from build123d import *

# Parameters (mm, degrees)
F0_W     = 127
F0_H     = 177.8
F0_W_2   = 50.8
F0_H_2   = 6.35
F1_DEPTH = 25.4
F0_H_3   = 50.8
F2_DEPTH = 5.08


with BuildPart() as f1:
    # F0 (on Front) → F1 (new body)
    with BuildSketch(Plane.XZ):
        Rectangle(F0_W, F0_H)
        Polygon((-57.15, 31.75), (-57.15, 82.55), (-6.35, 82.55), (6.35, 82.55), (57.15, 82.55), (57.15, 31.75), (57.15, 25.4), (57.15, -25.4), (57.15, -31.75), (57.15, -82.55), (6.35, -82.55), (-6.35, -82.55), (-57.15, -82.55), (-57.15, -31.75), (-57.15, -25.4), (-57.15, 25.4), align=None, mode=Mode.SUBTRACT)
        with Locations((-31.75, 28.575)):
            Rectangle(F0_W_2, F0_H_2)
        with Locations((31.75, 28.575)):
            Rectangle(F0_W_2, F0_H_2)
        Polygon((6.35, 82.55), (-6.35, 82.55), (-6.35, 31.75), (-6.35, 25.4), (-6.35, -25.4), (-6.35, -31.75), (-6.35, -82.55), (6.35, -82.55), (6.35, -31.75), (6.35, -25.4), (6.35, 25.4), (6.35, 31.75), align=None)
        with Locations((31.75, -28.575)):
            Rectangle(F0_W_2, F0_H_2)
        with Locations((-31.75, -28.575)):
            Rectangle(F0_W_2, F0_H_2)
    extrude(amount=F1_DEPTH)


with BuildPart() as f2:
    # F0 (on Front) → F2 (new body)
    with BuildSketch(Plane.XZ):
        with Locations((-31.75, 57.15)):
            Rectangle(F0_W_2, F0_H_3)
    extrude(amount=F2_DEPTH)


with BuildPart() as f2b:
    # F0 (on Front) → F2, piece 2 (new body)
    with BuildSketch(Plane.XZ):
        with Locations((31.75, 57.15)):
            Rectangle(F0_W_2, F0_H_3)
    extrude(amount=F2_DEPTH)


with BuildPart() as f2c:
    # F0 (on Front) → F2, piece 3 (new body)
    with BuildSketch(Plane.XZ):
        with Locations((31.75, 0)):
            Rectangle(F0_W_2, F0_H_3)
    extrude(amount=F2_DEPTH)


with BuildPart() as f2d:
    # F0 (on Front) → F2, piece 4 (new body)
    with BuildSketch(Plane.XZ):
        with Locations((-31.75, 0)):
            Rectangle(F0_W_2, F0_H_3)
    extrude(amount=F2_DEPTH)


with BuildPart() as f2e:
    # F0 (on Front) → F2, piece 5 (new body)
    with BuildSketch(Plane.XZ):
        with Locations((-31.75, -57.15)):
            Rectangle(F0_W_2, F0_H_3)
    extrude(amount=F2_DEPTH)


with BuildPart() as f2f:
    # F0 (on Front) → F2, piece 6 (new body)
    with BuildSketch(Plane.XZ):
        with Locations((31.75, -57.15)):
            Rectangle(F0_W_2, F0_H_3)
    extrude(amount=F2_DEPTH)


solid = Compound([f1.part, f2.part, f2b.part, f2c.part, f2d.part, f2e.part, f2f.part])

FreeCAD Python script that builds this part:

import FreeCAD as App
import Part
import Sketcher

V = App.Vector
Q = App.Units.Quantity

doc = App.newDocument("Part")
body = doc.addObject("PartDesign::Body", "Body")

# Sketch on XZ plane
sketch1 = body.newObject("Sketcher::SketchObject", "Sketch")
sketch1.AttachmentSupport = (doc.getObject("XZ_Plane"), [""])
sketch1.MapMode = "FlatFace"
sketch1.addGeometry([
    Part.LineSegment(V(-63.5, 88.9, 0), V(-63.5, -88.9, 0)),  # 0
    Part.LineSegment(V(-63.5, -88.9, 0), V(63.5, -88.9, 0)),  # 1
    Part.LineSegment(V(63.5, -88.9, 0), V(63.5, 88.9, 0)),  # 2
    Part.LineSegment(V(63.5, 88.9, 0), V(-63.5, 88.9, 0)),  # 3
    Part.LineSegment(V(-57.15, -82.55, 0), V(-57.15, -31.75, 0)),  # 4
    Part.LineSegment(V(-57.15, -31.75, 0), V(-6.35, -31.75, 0)),  # 5
    Part.LineSegment(V(-6.35, -31.75, 0), V(-6.35, -82.55, 0)),  # 6
    Part.LineSegment(V(-6.35, -82.55, 0), V(-57.15, -82.55, 0)),  # 7
    Part.LineSegment(V(-57.15, -25.4, 0), V(-57.15, 25.4, 0)),  # 8
    Part.LineSegment(V(-57.15, 25.4, 0), V(-6.35, 25.4, 0)),  # 9
    Part.LineSegment(V(-6.35, 25.4, 0), V(-6.35, -25.4, 0)),  # 10
    Part.LineSegment(V(-6.35, -25.4, 0), V(-57.15, -25.4, 0)),  # 11
    Part.LineSegment(V(-6.35, 31.75, 0), V(-57.15, 31.75, 0)),  # 12
    Part.LineSegment(V(-57.15, 31.75, 0), V(-57.15, 82.55, 0)),  # 13
    Part.LineSegment(V(-57.15, 82.55, 0), V(-6.35, 82.55, 0)),  # 14
    Part.LineSegment(V(-6.35, 82.55, 0), V(-6.35, 31.75, 0)),  # 15
    Part.LineSegment(V(6.35, 82.55, 0), V(57.15, 82.55, 0)),  # 16
    Part.LineSegment(V(57.15, 82.55, 0), V(57.15, 31.75, 0)),  # 17
    Part.LineSegment(V(57.15, 31.75, 0), V(6.35, 31.75, 0)),  # 18
    Part.LineSegment(V(6.35, 31.75, 0), V(6.35, 82.55, 0)),  # 19
    Part.LineSegment(V(6.35, 25.4, 0), V(57.15, 25.4, 0)),  # 20
    Part.LineSegment(V(57.15, 25.4, 0), V(57.15, -25.4, 0)),  # 21
    Part.LineSegment(V(57.15, -25.4, 0), V(6.35, -25.4, 0)),  # 22
    Part.LineSegment(V(6.35, -25.4, 0), V(6.35, 25.4, 0)),  # 23
    Part.LineSegment(V(57.15, -31.75, 0), V(57.15, -82.55, 0)),  # 24
    Part.LineSegment(V(57.15, -82.55, 0), V(6.35, -82.55, 0)),  # 25
    Part.LineSegment(V(6.35, -82.55, 0), V(6.35, -31.75, 0)),  # 26
    Part.LineSegment(V(6.35, -31.75, 0), V(57.15, -31.75, 0)),  # 27
], False)
sketch1.addConstraint([
    Sketcher.Constraint("Coincident", 0, 2, 1, 1),
    Sketcher.Constraint("Coincident", 1, 2, 2, 1),
    Sketcher.Constraint("Coincident", 2, 2, 3, 1),
    Sketcher.Constraint("Coincident", 3, 2, 0, 1),
    Sketcher.Constraint("Coincident", 4, 2, 5, 1),
    Sketcher.Constraint("Coincident", 5, 2, 6, 1),
    Sketcher.Constraint("Coincident", 6, 2, 7, 1),
    Sketcher.Constraint("Coincident", 7, 2, 4, 1),
    Sketcher.Constraint("Coincident", 8, 2, 9, 1),
    Sketcher.Constraint("Coincident", 9, 2, 10, 1),
    Sketcher.Constraint("Coincident", 10, 2, 11, 1),
    Sketcher.Constraint("Coincident", 11, 2, 8, 1),
    Sketcher.Constraint("Coincident", 12, 2, 13, 1),
    Sketcher.Constraint("Coincident", 13, 2, 14, 1),
    Sketcher.Constraint("Coincident", 14, 2, 15, 1),
    Sketcher.Constraint("Coincident", 15, 2, 12, 1),
    Sketcher.Constraint("Coincident", 16, 2, 17, 1),
    Sketcher.Constraint("Coincident", 17, 2, 18, 1),
    Sketcher.Constraint("Coincident", 18, 2, 19, 1),
    Sketcher.Constraint("Coincident", 19, 2, 16, 1),
    Sketcher.Constraint("Coincident", 20, 2, 21, 1),
    Sketcher.Constraint("Coincident", 21, 2, 22, 1),
    Sketcher.Constraint("Coincident", 22, 2, 23, 1),
    Sketcher.Constraint("Coincident", 23, 2, 20, 1),
    Sketcher.Constraint("Coincident", 24, 2, 25, 1),
    Sketcher.Constraint("Coincident", 25, 2, 26, 1),
    Sketcher.Constraint("Coincident", 26, 2, 27, 1),
    Sketcher.Constraint("Coincident", 27, 2, 24, 1),
    Sketcher.Constraint("Vertical", 0),
    Sketcher.Constraint("Horizontal", 1),
    Sketcher.Constraint("Vertical", 2),
    Sketcher.Constraint("Horizontal", 3),
    Sketcher.Constraint("Vertical", 4),
    Sketcher.Constraint("Horizontal", 5),
    Sketcher.Constraint("Vertical", 6),
    Sketcher.Constraint("Horizontal", 7),
    Sketcher.Constraint("Vertical", 8),
    Sketcher.Constraint("Horizontal", 9),
    Sketcher.Constraint("Vertical", 10),
    Sketcher.Constraint("Horizontal", 11),
    Sketcher.Constraint("Horizontal", 12),
    Sketcher.Constraint("Vertical", 13),
    Sketcher.Constraint("Horizontal", 14),
    Sketcher.Constraint("Vertical", 15),
    Sketcher.Constraint("Horizontal", 16),
    Sketcher.Constraint("Vertical", 17),
    Sketcher.Constraint("Horizontal", 18),
    Sketcher.Constraint("Vertical", 19),
    Sketcher.Constraint("Horizontal", 20),
    Sketcher.Constraint("Vertical", 21),
    Sketcher.Constraint("Horizontal", 22),
    Sketcher.Constraint("Vertical", 23),
    Sketcher.Constraint("Vertical", 24),
    Sketcher.Constraint("Horizontal", 25),
    Sketcher.Constraint("Vertical", 26),
    Sketcher.Constraint("Horizontal", 27),
    Sketcher.Constraint("Symmetric", 0, 2, 2, 2, -1, 1),
    Sketcher.Constraint("Symmetric", 7, 2, 16, 2, -1, 1),
    Sketcher.Constraint("Symmetric", 5, 2, 18, 2, -1, 1),
    Sketcher.Constraint("Symmetric", 11, 2, 20, 2, -1, 1),
    Sketcher.Constraint("Symmetric", 9, 2, 22, 2, -1, 1),
    Sketcher.Constraint("Symmetric", 13, 2, 24, 2, -1, 1),
    Sketcher.Constraint("Symmetric", 15, 2, 26, 2, -1, 1),
    Sketcher.Constraint("Symmetric", 13, 2, 16, 2, -2),
    Sketcher.Constraint("Symmetric", 15, 2, 18, 2, -2),
    Sketcher.Constraint("Horizontal", 9, 2, 20, 2),
    Sketcher.Constraint("Vertical", 7, 2, 8, 2),
    Sketcher.Constraint("Vertical", 6, 2, 9, 2),
    Sketcher.Constraint("Equal", 27, 4),
    Sketcher.Constraint("Equal", 6, 8),
    Sketcher.Constraint("DistanceX", 1, 1, 1, 2, Q("5 in")),
    Sketcher.Constraint("DistanceX", 5, 1, 5, 2, Q("2 in")),
    Sketcher.Constraint("DistanceY", 0, 2, 0, 1, Q("7 in")),
    Sketcher.Constraint("DistanceY", 4, 2, 12, 2, Q("2.5 in")),
    Sketcher.Constraint("DistanceX", 14, 2, 16, 2, Q("2.5 in")),
])
pad1 = body.newObject("PartDesign::Pad", "Pad")
pad1.Profile = sketch1
pad1.Length = Q("1 in")
body2 = doc.addObject("PartDesign::Body", "Body001")

# Sketch on XZ plane
sketch2 = body2.newObject("Sketcher::SketchObject", "Sketch001")
sketch2.AttachmentSupport = (doc.getObject("XZ_Plane001"), [""])
sketch2.MapMode = "FlatFace"
sketch2.addGeometry([
    Part.LineSegment(V(-57.15, 82.55, 0), V(-57.15, 31.75, 0)),
    Part.LineSegment(V(-57.15, 31.75, 0), V(-6.35, 31.75, 0)),
    Part.LineSegment(V(-6.35, 31.75, 0), V(-6.35, 82.55, 0)),
    Part.LineSegment(V(-6.35, 82.55, 0), V(-57.15, 82.55, 0)),
], False)
sketch2.addConstraint([
    Sketcher.Constraint("Coincident", 0, 2, 1, 1),
    Sketcher.Constraint("Coincident", 1, 2, 2, 1),
    Sketcher.Constraint("Coincident", 2, 2, 3, 1),
    Sketcher.Constraint("Coincident", 3, 2, 0, 1),
    Sketcher.Constraint("Vertical", 0),
    Sketcher.Constraint("Horizontal", 1),
    Sketcher.Constraint("Vertical", 2),
    Sketcher.Constraint("Horizontal", 3),
    Sketcher.Constraint("Equal", 3, 0),
    Sketcher.Constraint("DistanceX", 1, 1, 1, 2, Q("2 in")),
    Sketcher.Constraint("DistanceX", 0, 2, -1, 1, Q("2.25 in")),
    Sketcher.Constraint("DistanceY", -1, 1, 0, 2, Q("1.25 in")),
])
pad2 = body2.newObject("PartDesign::Pad", "Pad001")
pad2.Profile = sketch2
pad2.Length = Q("0.2 in")
body3 = doc.addObject("PartDesign::Body", "Body002")

# Sketch on XZ plane
sketch3 = body3.newObject("Sketcher::SketchObject", "Sketch002")
sketch3.AttachmentSupport = (doc.getObject("XZ_Plane002"), [""])
sketch3.MapMode = "FlatFace"
sketch3.addGeometry([
    Part.LineSegment(V(6.35, 82.55, 0), V(6.35, 31.75, 0)),
    Part.LineSegment(V(6.35, 31.75, 0), V(57.15, 31.75, 0)),
    Part.LineSegment(V(57.15, 31.75, 0), V(57.15, 82.55, 0)),
    Part.LineSegment(V(57.15, 82.55, 0), V(6.35, 82.55, 0)),
], False)
sketch3.addConstraint([
    Sketcher.Constraint("Coincident", 0, 2, 1, 1),
    Sketcher.Constraint("Coincident", 1, 2, 2, 1),
    Sketcher.Constraint("Coincident", 2, 2, 3, 1),
    Sketcher.Constraint("Coincident", 3, 2, 0, 1),
    Sketcher.Constraint("Vertical", 0),
    Sketcher.Constraint("Horizontal", 1),
    Sketcher.Constraint("Vertical", 2),
    Sketcher.Constraint("Horizontal", 3),
    Sketcher.Constraint("Equal", 3, 0),
    Sketcher.Constraint("DistanceX", 1, 1, 1, 2, Q("2 in")),
    Sketcher.Constraint("DistanceX", -1, 1, 0, 2, Q("0.25 in")),
    Sketcher.Constraint("DistanceY", -1, 1, 0, 2, Q("1.25 in")),
])
pad3 = body3.newObject("PartDesign::Pad", "Pad002")
pad3.Profile = sketch3
pad3.Length = Q("0.2 in")
body4 = doc.addObject("PartDesign::Body", "Body003")

# Sketch on XZ plane
sketch4 = body4.newObject("Sketcher::SketchObject", "Sketch003")
sketch4.AttachmentSupport = (doc.getObject("XZ_Plane003"), [""])
sketch4.MapMode = "FlatFace"
sketch4.addGeometry([
    Part.LineSegment(V(6.35, 25.4, 0), V(6.35, -25.4, 0)),
    Part.LineSegment(V(6.35, -25.4, 0), V(57.15, -25.4, 0)),
    Part.LineSegment(V(57.15, -25.4, 0), V(57.15, 25.4, 0)),
    Part.LineSegment(V(57.15, 25.4, 0), V(6.35, 25.4, 0)),
], False)
sketch4.addConstraint([
    Sketcher.Constraint("Coincident", 0, 2, 1, 1),
    Sketcher.Constraint("Coincident", 1, 2, 2, 1),
    Sketcher.Constraint("Coincident", 2, 2, 3, 1),
    Sketcher.Constraint("Coincident", 3, 2, 0, 1),
    Sketcher.Constraint("Vertical", 0),
    Sketcher.Constraint("Horizontal", 1),
    Sketcher.Constraint("Vertical", 2),
    Sketcher.Constraint("Horizontal", 3),
    Sketcher.Constraint("Equal", 3, 0),
    Sketcher.Constraint("DistanceX", 1, 1, 1, 2, Q("2 in")),
    Sketcher.Constraint("DistanceY", 0, 2, -1, 1, Q("1 in")),
    Sketcher.Constraint("DistanceX", -1, 1, 0, 2, Q("0.25 in")),
])
pad4 = body4.newObject("PartDesign::Pad", "Pad003")
pad4.Profile = sketch4
pad4.Length = Q("0.2 in")
body5 = doc.addObject("PartDesign::Body", "Body004")

# Sketch on XZ plane
sketch5 = body5.newObject("Sketcher::SketchObject", "Sketch004")
sketch5.AttachmentSupport = (doc.getObject("XZ_Plane004"), [""])
sketch5.MapMode = "FlatFace"
sketch5.addGeometry([
    Part.LineSegment(V(-57.15, 25.4, 0), V(-57.15, -25.4, 0)),
    Part.LineSegment(V(-57.15, -25.4, 0), V(-6.35, -25.4, 0)),
    Part.LineSegment(V(-6.35, -25.4, 0), V(-6.35, 25.4, 0)),
    Part.LineSegment(V(-6.35, 25.4, 0), V(-57.15, 25.4, 0)),
], False)
sketch5.addConstraint([
    Sketcher.Constraint("Coincident", 0, 2, 1, 1),
    Sketcher.Constraint("Coincident", 1, 2, 2, 1),
    Sketcher.Constraint("Coincident", 2, 2, 3, 1),
    Sketcher.Constraint("Coincident", 3, 2, 0, 1),
    Sketcher.Constraint("Vertical", 0),
    Sketcher.Constraint("Horizontal", 1),
    Sketcher.Constraint("Vertical", 2),
    Sketcher.Constraint("Horizontal", 3),
    Sketcher.Constraint("Equal", 3, 0),
    Sketcher.Constraint("DistanceX", 1, 1, 1, 2, Q("2 in")),
    Sketcher.Constraint("DistanceY", 0, 2, -1, 1, Q("1 in")),
    Sketcher.Constraint("DistanceX", 0, 2, -1, 1, Q("2.25 in")),
])
pad5 = body5.newObject("PartDesign::Pad", "Pad004")
pad5.Profile = sketch5
pad5.Length = Q("0.2 in")
body6 = doc.addObject("PartDesign::Body", "Body005")

# Sketch on XZ plane
sketch6 = body6.newObject("Sketcher::SketchObject", "Sketch005")
sketch6.AttachmentSupport = (doc.getObject("XZ_Plane005"), [""])
sketch6.MapMode = "FlatFace"
sketch6.addGeometry([
    Part.LineSegment(V(-57.15, -31.75, 0), V(-57.15, -82.55, 0)),
    Part.LineSegment(V(-57.15, -82.55, 0), V(-6.35, -82.55, 0)),
    Part.LineSegment(V(-6.35, -82.55, 0), V(-6.35, -31.75, 0)),
    Part.LineSegment(V(-6.35, -31.75, 0), V(-57.15, -31.75, 0)),
], False)
sketch6.addConstraint([
    Sketcher.Constraint("Coincident", 0, 2, 1, 1),
    Sketcher.Constraint("Coincident", 1, 2, 2, 1),
    Sketcher.Constraint("Coincident", 2, 2, 3, 1),
    Sketcher.Constraint("Coincident", 3, 2, 0, 1),
    Sketcher.Constraint("Vertical", 0),
    Sketcher.Constraint("Horizontal", 1),
    Sketcher.Constraint("Vertical", 2),
    Sketcher.Constraint("Horizontal", 3),
    Sketcher.Constraint("Equal", 3, 0),
    Sketcher.Constraint("DistanceX", 1, 1, 1, 2, Q("2 in")),
    Sketcher.Constraint("DistanceX", 0, 2, -1, 1, Q("2.25 in")),
    Sketcher.Constraint("DistanceY", 0, 2, -1, 1, Q("3.25 in")),
])
pad6 = body6.newObject("PartDesign::Pad", "Pad005")
pad6.Profile = sketch6
pad6.Length = Q("0.2 in")
body7 = doc.addObject("PartDesign::Body", "Body006")

# Sketch on XZ plane
sketch7 = body7.newObject("Sketcher::SketchObject", "Sketch006")
sketch7.AttachmentSupport = (doc.getObject("XZ_Plane006"), [""])
sketch7.MapMode = "FlatFace"
sketch7.addGeometry([
    Part.LineSegment(V(6.35, -31.75, 0), V(6.35, -82.55, 0)),
    Part.LineSegment(V(6.35, -82.55, 0), V(57.15, -82.55, 0)),
    Part.LineSegment(V(57.15, -82.55, 0), V(57.15, -31.75, 0)),
    Part.LineSegment(V(57.15, -31.75, 0), V(6.35, -31.75, 0)),
], False)
sketch7.addConstraint([
    Sketcher.Constraint("Coincident", 0, 2, 1, 1),
    Sketcher.Constraint("Coincident", 1, 2, 2, 1),
    Sketcher.Constraint("Coincident", 2, 2, 3, 1),
    Sketcher.Constraint("Coincident", 3, 2, 0, 1),
    Sketcher.Constraint("Vertical", 0),
    Sketcher.Constraint("Horizontal", 1),
    Sketcher.Constraint("Vertical", 2),
    Sketcher.Constraint("Horizontal", 3),
    Sketcher.Constraint("Equal", 3, 0),
    Sketcher.Constraint("DistanceX", 1, 1, 1, 2, Q("2 in")),
    Sketcher.Constraint("DistanceX", -1, 1, 0, 2, Q("0.25 in")),
    Sketcher.Constraint("DistanceY", 0, 2, -1, 1, Q("3.25 in")),
])
pad7 = body7.newObject("PartDesign::Pad", "Pad006")
pad7.Profile = sketch7
pad7.Length = Q("0.2 in")

doc.recompute()
